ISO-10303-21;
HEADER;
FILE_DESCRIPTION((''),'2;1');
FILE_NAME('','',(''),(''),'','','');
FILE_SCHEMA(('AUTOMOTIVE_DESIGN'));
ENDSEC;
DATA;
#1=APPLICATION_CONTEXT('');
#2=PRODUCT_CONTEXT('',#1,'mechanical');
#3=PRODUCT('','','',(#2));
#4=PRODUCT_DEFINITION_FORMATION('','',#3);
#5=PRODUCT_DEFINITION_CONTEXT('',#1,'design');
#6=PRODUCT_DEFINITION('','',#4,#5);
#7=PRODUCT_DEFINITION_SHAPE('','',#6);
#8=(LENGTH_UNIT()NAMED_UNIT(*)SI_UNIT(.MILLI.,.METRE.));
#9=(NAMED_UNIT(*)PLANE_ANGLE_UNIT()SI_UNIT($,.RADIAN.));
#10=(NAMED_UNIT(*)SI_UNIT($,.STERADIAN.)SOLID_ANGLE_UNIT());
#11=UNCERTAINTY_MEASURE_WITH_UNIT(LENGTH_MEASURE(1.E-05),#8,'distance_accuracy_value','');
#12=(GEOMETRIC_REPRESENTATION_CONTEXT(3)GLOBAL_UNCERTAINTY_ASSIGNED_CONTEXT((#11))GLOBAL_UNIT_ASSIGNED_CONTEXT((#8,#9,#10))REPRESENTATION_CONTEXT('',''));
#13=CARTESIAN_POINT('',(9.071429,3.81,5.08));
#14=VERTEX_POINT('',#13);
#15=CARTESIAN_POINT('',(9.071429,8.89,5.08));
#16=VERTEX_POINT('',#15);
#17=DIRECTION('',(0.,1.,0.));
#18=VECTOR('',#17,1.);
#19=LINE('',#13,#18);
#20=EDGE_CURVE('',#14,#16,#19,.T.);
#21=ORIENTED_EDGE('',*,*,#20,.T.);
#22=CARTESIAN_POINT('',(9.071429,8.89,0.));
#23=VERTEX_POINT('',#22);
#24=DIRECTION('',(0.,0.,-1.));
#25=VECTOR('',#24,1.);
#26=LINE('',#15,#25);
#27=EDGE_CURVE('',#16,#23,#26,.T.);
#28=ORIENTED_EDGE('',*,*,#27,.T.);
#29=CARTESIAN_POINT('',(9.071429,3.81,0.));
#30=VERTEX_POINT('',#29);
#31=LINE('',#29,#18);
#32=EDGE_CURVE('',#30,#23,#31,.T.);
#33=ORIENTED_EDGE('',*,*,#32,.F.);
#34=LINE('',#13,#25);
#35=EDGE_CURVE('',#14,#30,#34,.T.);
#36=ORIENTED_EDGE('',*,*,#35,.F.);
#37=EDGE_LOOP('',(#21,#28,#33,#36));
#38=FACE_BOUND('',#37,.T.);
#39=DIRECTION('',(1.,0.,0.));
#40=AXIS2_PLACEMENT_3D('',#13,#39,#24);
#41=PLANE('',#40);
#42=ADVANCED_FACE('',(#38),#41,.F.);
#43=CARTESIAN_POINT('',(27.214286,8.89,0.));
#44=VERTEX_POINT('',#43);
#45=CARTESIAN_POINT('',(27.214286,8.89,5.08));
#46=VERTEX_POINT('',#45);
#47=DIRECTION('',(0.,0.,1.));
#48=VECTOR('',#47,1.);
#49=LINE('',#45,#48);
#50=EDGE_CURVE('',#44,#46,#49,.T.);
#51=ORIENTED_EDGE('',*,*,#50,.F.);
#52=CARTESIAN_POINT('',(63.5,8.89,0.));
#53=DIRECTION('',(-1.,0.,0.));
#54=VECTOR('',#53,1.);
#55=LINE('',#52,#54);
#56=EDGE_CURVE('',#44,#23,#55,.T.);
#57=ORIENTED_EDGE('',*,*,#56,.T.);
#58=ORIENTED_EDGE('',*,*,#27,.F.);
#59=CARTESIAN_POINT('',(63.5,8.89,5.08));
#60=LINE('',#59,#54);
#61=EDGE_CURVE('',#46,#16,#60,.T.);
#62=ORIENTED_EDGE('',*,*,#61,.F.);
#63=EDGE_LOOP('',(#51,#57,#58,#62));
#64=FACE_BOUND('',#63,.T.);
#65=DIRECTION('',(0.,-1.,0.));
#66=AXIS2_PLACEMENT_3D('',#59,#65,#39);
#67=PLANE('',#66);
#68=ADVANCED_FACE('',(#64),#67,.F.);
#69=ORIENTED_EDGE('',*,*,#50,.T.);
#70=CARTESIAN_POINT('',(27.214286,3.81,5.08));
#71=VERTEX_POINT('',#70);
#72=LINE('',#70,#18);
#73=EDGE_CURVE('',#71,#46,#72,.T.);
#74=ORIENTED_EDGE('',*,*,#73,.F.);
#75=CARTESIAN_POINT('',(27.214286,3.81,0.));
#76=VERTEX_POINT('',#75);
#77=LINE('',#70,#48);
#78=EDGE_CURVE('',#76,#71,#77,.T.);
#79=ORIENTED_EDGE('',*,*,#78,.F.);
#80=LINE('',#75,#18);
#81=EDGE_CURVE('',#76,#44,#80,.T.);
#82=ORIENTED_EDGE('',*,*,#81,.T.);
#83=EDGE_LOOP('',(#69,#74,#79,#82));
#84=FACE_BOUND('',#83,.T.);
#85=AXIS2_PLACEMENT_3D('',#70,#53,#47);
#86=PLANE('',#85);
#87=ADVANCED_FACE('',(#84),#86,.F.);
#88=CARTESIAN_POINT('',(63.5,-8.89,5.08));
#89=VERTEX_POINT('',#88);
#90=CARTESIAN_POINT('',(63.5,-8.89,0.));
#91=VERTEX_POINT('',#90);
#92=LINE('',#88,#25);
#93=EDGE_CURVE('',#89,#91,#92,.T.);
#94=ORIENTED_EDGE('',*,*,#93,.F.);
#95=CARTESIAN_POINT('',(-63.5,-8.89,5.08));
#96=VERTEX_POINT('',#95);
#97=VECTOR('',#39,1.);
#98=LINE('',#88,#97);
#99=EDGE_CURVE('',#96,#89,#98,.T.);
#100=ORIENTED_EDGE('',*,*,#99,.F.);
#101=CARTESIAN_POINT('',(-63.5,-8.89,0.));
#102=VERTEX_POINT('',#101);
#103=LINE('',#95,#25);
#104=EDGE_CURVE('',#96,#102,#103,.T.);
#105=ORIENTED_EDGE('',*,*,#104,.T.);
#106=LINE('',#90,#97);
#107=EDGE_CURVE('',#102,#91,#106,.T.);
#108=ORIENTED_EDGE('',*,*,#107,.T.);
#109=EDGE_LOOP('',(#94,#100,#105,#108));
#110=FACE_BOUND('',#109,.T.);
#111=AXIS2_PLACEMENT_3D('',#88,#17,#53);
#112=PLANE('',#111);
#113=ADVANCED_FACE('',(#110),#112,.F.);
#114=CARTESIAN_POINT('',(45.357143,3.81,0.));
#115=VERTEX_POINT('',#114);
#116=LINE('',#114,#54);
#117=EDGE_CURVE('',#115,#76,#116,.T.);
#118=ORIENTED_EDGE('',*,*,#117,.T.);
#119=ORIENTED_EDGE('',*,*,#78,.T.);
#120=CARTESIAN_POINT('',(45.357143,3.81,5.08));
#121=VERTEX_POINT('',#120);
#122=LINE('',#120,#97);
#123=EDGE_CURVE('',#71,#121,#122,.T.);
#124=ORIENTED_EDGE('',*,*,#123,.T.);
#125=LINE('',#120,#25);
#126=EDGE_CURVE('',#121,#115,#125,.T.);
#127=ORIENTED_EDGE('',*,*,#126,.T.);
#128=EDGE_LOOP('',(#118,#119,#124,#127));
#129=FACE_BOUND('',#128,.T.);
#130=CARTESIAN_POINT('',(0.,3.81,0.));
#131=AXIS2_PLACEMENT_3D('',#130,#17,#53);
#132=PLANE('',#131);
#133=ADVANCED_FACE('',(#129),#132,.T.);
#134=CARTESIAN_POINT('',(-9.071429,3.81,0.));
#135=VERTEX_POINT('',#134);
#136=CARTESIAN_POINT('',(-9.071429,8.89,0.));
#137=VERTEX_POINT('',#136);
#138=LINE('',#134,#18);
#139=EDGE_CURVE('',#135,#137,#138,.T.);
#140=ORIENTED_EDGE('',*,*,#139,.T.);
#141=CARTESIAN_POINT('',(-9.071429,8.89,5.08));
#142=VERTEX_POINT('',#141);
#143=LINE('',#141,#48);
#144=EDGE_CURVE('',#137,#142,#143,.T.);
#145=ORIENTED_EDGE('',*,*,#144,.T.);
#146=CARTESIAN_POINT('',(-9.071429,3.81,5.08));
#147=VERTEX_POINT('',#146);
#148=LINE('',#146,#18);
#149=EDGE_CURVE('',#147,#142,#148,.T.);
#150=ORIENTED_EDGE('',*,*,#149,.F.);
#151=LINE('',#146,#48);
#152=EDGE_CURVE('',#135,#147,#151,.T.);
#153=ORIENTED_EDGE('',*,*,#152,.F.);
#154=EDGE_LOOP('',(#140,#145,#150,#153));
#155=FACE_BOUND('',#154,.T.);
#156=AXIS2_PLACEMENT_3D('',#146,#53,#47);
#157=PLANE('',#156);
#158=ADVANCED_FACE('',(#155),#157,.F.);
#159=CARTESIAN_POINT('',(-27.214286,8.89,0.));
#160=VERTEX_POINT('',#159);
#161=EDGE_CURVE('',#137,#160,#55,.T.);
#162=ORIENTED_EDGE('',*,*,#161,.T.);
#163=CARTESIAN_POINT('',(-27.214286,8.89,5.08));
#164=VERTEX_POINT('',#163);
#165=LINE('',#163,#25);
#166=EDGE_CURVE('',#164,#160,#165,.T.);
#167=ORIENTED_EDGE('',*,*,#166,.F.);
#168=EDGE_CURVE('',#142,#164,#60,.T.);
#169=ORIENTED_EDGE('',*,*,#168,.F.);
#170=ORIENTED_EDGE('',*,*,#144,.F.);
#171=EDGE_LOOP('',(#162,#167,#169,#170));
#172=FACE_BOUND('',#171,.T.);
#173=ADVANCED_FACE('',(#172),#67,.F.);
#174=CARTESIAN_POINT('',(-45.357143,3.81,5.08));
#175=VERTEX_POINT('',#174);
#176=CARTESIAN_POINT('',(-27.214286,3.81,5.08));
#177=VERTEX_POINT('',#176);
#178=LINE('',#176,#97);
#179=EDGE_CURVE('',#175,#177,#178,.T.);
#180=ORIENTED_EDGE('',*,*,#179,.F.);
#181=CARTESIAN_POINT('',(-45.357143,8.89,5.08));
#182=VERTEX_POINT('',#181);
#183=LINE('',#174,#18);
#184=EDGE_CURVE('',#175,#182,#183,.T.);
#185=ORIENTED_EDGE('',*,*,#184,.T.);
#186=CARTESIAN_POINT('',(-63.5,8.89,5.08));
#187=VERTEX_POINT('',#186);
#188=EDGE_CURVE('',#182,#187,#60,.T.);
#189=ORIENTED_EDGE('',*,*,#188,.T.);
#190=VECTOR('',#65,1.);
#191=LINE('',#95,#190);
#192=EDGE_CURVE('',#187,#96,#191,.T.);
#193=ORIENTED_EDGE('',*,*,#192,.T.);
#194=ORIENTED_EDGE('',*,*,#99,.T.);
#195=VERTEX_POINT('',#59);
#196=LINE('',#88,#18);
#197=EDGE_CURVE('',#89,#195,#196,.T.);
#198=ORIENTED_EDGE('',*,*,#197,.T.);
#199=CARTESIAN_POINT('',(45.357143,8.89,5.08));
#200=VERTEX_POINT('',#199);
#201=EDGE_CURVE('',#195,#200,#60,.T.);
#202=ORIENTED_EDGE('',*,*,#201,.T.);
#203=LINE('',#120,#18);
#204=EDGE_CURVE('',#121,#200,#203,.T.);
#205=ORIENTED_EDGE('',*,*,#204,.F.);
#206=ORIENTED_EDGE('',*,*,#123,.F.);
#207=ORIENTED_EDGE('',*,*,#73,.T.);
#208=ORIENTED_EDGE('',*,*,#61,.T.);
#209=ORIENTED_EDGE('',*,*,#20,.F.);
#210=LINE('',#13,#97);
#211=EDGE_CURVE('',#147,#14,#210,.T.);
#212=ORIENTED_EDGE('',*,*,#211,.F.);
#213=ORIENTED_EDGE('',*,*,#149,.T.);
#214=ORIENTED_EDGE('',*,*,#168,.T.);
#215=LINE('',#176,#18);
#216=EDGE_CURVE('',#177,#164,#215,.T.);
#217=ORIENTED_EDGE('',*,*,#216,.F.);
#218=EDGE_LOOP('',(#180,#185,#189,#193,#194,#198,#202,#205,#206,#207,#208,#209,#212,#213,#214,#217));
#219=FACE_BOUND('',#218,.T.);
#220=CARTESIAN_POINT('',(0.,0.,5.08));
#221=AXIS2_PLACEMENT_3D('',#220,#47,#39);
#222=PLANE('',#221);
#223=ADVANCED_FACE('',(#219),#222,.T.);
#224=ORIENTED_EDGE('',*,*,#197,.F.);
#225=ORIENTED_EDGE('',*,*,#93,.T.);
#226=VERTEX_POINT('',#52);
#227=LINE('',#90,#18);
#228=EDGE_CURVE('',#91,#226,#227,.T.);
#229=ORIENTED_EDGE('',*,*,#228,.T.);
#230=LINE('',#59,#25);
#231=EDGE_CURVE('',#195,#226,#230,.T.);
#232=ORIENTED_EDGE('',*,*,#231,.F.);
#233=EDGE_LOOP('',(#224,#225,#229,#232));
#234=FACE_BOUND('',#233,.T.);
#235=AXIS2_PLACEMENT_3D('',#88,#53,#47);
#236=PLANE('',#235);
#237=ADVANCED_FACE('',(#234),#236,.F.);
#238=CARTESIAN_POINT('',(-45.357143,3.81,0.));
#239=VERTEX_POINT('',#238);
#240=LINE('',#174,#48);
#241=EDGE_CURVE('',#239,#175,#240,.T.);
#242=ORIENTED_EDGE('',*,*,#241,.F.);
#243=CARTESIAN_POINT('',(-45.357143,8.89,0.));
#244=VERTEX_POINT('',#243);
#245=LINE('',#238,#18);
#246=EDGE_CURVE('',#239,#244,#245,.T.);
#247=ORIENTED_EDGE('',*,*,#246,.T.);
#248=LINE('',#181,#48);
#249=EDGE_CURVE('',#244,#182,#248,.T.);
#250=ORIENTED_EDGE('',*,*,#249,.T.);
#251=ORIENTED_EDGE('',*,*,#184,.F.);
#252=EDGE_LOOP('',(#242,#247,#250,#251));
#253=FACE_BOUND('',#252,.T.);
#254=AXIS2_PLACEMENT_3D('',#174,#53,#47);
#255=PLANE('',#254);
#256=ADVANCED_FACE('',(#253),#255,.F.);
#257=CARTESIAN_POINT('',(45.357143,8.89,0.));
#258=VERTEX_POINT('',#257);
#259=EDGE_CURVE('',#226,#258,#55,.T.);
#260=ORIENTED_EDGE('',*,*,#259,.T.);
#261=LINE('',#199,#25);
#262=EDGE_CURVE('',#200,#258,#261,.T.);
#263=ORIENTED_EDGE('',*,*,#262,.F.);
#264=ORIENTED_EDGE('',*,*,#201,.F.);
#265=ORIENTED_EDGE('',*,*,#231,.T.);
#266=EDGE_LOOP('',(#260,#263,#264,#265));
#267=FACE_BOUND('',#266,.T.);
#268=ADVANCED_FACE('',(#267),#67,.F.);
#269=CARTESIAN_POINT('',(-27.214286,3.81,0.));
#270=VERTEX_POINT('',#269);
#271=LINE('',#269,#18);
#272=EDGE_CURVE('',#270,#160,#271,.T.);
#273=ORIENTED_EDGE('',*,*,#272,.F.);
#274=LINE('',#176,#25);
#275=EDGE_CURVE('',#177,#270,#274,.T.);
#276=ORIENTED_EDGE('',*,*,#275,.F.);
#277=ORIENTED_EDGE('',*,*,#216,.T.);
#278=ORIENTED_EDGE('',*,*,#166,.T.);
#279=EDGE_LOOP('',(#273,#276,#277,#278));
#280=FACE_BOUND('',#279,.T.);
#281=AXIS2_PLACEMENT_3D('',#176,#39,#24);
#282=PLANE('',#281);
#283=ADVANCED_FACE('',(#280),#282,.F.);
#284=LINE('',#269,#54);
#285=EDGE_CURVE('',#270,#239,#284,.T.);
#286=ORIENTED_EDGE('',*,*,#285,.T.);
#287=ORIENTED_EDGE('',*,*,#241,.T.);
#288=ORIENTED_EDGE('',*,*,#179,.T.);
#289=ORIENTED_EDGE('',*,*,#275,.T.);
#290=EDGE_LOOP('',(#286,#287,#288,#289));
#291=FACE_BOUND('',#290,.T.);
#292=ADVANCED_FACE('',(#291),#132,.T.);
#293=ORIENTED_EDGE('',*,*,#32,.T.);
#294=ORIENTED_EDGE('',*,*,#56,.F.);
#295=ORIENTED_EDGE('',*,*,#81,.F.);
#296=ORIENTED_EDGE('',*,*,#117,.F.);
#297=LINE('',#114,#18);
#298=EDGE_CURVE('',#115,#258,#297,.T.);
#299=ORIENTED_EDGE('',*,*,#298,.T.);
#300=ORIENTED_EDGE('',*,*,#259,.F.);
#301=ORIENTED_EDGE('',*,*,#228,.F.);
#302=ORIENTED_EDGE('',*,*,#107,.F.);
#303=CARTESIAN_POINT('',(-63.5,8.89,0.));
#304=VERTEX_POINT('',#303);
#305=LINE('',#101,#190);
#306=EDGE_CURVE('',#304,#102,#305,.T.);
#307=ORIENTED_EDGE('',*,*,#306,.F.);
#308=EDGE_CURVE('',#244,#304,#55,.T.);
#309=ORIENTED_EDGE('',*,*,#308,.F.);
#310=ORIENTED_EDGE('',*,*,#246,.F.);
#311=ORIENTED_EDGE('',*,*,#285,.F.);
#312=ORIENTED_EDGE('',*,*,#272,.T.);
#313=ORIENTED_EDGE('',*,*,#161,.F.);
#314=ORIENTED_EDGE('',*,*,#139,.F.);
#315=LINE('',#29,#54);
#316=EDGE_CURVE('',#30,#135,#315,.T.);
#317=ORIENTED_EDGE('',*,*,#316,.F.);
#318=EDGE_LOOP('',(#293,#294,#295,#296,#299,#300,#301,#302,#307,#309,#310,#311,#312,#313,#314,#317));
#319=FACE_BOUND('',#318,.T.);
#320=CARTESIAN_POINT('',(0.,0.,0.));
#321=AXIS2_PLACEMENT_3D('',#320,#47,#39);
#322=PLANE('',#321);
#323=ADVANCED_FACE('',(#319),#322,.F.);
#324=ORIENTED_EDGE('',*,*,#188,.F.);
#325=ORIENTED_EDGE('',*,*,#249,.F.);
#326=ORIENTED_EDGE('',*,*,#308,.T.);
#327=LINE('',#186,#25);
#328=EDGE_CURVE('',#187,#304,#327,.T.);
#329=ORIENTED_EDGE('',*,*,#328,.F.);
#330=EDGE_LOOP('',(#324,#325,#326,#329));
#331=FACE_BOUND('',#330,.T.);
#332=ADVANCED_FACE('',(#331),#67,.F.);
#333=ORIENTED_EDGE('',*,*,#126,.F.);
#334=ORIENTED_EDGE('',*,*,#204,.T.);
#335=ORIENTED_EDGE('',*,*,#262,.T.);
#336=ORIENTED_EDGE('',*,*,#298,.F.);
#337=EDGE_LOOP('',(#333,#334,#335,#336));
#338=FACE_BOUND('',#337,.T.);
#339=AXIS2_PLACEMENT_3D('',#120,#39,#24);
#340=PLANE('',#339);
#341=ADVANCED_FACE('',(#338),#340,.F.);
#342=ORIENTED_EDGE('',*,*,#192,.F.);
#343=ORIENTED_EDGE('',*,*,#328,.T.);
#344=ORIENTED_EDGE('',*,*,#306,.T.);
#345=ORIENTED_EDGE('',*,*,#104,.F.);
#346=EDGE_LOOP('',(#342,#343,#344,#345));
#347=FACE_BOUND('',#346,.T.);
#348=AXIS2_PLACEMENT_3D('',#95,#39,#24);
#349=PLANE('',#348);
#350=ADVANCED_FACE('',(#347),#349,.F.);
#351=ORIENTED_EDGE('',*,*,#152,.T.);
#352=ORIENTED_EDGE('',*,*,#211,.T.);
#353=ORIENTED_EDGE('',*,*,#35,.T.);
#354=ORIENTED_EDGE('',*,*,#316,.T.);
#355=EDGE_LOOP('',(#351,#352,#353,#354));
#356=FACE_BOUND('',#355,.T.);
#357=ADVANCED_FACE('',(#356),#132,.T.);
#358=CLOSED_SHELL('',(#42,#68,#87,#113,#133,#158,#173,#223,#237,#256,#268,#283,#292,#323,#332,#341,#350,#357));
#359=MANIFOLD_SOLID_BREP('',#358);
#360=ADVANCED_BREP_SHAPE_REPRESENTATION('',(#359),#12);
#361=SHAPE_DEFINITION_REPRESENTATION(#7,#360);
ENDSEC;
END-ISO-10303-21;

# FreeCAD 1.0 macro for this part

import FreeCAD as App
import Part
import Sketcher
Q = App.Units.Quantity


def add_polygon(sketch, points):
    """Adds a closed chain of lines whose ends are joined by coincident constraints."""
    first, n = sketch.GeometryCount, len(points)
    for a, b in zip(points, points[1:] + points[:1]):
        sketch.addGeometry(Part.LineSegment(App.Vector(*a, 0), App.Vector(*b, 0)), False)
    for i in range(n):
        sketch.addConstraint(Sketcher.Constraint("Coincident", first + i, 2, first + (i + 1) % n, 1))

doc = App.newDocument("Part")
body = doc.addObject("PartDesign::Body", "Body")

sketch1 = body.newObject("Sketcher::SketchObject", "Sketch")
sketch1.AttachmentSupport = (doc.getObject("XY_Plane"), [""])
sketch1.MapMode = "FlatFace"
add_polygon(sketch1, [(-63.5, 8.89), (-63.5, -8.89), (63.5, -8.89), (63.5, 8.89)])
sketch1.addConstraint([
    Sketcher.Constraint("Vertical", 0),
    Sketcher.Constraint("Horizontal", 1),
    Sketcher.Constraint("Vertical", 2),
    Sketcher.Constraint("Horizontal", 3),
    Sketcher.Constraint("Symmetric", 0, 2, 2, 2, -1, 1),
    Sketcher.Constraint("DistanceX", 1, 1, 1, 2, Q("5 in")),
    Sketcher.Constraint("DistanceY", 0, 2, 0, 1, Q("0.7 in")),
])
pad1 = body.newObject("PartDesign::Pad", "Pad")
pad1.Profile = sketch1
pad1.Length = Q("0.2 in")

sketch2 = body.newObject("Sketcher::SketchObject", "Sketch001")
sketch2.AttachmentSupport = (doc.getObject("XZ_Plane"), [""])
sketch2.MapMode = "FlatFace"
sketch2.AttachmentOffset = App.Placement(App.Vector(0, 0, -0.35 * 25.4), App.Rotation())
add_polygon(sketch2, [(27.214286, 0), (27.214286, 5.08), (45.357143, 5.08), (45.357143, 0)])
add_polygon(sketch2, [(-9.071429, 0), (-9.071429, 5.08), (9.071429, 5.08), (9.071429, 0)])
add_polygon(sketch2, [(-45.357143, 0), (-45.357143, 5.08), (-27.214286, 5.08), (-27.214286, 0)])
sketch2.addConstraint([
    Sketcher.Constraint("Vertical", 0),
    Sketcher.Constraint("Horizontal", 1),
    Sketcher.Constraint("Vertical", 2),
    Sketcher.Constraint("Horizontal", 3),
    Sketcher.Constraint("Vertical", 4),
    Sketcher.Constraint("Horizontal", 5),
    Sketcher.Constraint("Vertical", 6),
    Sketcher.Constraint("Horizontal", 7),
    Sketcher.Constraint("Vertical", 8),
    Sketcher.Constraint("Horizontal", 9),
    Sketcher.Constraint("Vertical", 10),
    Sketcher.Constraint("Horizontal", 11),
    Sketcher.Constraint("Symmetric", 6, 2, 7, 2, -1, 1),
    Sketcher.Constraint("Symmetric", 3, 2, 10, 2, -1, 1),
    Sketcher.Constraint("Symmetric", 1, 2, 8, 2, -2),
    Sketcher.Constraint("PointOnObject", 2, 2, -1),
    Sketcher.Constraint("Horizontal", 1, 2, 4, 2),
    Sketcher.Constraint("Equal", 3, 5),
    Sketcher.Constraint("DistanceY", 0, 1, 0, 2, Q("0.2 in")),
    Sketcher.Constraint("DistanceX", 1, 1, 1, 2, Q("18.142857 mm")),
    Sketcher.Constraint("DistanceX", 4, 2, 1, 2, Q("54.428571 mm")),
])
pocket1 = body.newObject("PartDesign::Pocket", "Pocket")
pocket1.Profile = sketch2
pocket1.Length = Q("0.2 in")
pocket1.Reversed = True

doc.recompute()
